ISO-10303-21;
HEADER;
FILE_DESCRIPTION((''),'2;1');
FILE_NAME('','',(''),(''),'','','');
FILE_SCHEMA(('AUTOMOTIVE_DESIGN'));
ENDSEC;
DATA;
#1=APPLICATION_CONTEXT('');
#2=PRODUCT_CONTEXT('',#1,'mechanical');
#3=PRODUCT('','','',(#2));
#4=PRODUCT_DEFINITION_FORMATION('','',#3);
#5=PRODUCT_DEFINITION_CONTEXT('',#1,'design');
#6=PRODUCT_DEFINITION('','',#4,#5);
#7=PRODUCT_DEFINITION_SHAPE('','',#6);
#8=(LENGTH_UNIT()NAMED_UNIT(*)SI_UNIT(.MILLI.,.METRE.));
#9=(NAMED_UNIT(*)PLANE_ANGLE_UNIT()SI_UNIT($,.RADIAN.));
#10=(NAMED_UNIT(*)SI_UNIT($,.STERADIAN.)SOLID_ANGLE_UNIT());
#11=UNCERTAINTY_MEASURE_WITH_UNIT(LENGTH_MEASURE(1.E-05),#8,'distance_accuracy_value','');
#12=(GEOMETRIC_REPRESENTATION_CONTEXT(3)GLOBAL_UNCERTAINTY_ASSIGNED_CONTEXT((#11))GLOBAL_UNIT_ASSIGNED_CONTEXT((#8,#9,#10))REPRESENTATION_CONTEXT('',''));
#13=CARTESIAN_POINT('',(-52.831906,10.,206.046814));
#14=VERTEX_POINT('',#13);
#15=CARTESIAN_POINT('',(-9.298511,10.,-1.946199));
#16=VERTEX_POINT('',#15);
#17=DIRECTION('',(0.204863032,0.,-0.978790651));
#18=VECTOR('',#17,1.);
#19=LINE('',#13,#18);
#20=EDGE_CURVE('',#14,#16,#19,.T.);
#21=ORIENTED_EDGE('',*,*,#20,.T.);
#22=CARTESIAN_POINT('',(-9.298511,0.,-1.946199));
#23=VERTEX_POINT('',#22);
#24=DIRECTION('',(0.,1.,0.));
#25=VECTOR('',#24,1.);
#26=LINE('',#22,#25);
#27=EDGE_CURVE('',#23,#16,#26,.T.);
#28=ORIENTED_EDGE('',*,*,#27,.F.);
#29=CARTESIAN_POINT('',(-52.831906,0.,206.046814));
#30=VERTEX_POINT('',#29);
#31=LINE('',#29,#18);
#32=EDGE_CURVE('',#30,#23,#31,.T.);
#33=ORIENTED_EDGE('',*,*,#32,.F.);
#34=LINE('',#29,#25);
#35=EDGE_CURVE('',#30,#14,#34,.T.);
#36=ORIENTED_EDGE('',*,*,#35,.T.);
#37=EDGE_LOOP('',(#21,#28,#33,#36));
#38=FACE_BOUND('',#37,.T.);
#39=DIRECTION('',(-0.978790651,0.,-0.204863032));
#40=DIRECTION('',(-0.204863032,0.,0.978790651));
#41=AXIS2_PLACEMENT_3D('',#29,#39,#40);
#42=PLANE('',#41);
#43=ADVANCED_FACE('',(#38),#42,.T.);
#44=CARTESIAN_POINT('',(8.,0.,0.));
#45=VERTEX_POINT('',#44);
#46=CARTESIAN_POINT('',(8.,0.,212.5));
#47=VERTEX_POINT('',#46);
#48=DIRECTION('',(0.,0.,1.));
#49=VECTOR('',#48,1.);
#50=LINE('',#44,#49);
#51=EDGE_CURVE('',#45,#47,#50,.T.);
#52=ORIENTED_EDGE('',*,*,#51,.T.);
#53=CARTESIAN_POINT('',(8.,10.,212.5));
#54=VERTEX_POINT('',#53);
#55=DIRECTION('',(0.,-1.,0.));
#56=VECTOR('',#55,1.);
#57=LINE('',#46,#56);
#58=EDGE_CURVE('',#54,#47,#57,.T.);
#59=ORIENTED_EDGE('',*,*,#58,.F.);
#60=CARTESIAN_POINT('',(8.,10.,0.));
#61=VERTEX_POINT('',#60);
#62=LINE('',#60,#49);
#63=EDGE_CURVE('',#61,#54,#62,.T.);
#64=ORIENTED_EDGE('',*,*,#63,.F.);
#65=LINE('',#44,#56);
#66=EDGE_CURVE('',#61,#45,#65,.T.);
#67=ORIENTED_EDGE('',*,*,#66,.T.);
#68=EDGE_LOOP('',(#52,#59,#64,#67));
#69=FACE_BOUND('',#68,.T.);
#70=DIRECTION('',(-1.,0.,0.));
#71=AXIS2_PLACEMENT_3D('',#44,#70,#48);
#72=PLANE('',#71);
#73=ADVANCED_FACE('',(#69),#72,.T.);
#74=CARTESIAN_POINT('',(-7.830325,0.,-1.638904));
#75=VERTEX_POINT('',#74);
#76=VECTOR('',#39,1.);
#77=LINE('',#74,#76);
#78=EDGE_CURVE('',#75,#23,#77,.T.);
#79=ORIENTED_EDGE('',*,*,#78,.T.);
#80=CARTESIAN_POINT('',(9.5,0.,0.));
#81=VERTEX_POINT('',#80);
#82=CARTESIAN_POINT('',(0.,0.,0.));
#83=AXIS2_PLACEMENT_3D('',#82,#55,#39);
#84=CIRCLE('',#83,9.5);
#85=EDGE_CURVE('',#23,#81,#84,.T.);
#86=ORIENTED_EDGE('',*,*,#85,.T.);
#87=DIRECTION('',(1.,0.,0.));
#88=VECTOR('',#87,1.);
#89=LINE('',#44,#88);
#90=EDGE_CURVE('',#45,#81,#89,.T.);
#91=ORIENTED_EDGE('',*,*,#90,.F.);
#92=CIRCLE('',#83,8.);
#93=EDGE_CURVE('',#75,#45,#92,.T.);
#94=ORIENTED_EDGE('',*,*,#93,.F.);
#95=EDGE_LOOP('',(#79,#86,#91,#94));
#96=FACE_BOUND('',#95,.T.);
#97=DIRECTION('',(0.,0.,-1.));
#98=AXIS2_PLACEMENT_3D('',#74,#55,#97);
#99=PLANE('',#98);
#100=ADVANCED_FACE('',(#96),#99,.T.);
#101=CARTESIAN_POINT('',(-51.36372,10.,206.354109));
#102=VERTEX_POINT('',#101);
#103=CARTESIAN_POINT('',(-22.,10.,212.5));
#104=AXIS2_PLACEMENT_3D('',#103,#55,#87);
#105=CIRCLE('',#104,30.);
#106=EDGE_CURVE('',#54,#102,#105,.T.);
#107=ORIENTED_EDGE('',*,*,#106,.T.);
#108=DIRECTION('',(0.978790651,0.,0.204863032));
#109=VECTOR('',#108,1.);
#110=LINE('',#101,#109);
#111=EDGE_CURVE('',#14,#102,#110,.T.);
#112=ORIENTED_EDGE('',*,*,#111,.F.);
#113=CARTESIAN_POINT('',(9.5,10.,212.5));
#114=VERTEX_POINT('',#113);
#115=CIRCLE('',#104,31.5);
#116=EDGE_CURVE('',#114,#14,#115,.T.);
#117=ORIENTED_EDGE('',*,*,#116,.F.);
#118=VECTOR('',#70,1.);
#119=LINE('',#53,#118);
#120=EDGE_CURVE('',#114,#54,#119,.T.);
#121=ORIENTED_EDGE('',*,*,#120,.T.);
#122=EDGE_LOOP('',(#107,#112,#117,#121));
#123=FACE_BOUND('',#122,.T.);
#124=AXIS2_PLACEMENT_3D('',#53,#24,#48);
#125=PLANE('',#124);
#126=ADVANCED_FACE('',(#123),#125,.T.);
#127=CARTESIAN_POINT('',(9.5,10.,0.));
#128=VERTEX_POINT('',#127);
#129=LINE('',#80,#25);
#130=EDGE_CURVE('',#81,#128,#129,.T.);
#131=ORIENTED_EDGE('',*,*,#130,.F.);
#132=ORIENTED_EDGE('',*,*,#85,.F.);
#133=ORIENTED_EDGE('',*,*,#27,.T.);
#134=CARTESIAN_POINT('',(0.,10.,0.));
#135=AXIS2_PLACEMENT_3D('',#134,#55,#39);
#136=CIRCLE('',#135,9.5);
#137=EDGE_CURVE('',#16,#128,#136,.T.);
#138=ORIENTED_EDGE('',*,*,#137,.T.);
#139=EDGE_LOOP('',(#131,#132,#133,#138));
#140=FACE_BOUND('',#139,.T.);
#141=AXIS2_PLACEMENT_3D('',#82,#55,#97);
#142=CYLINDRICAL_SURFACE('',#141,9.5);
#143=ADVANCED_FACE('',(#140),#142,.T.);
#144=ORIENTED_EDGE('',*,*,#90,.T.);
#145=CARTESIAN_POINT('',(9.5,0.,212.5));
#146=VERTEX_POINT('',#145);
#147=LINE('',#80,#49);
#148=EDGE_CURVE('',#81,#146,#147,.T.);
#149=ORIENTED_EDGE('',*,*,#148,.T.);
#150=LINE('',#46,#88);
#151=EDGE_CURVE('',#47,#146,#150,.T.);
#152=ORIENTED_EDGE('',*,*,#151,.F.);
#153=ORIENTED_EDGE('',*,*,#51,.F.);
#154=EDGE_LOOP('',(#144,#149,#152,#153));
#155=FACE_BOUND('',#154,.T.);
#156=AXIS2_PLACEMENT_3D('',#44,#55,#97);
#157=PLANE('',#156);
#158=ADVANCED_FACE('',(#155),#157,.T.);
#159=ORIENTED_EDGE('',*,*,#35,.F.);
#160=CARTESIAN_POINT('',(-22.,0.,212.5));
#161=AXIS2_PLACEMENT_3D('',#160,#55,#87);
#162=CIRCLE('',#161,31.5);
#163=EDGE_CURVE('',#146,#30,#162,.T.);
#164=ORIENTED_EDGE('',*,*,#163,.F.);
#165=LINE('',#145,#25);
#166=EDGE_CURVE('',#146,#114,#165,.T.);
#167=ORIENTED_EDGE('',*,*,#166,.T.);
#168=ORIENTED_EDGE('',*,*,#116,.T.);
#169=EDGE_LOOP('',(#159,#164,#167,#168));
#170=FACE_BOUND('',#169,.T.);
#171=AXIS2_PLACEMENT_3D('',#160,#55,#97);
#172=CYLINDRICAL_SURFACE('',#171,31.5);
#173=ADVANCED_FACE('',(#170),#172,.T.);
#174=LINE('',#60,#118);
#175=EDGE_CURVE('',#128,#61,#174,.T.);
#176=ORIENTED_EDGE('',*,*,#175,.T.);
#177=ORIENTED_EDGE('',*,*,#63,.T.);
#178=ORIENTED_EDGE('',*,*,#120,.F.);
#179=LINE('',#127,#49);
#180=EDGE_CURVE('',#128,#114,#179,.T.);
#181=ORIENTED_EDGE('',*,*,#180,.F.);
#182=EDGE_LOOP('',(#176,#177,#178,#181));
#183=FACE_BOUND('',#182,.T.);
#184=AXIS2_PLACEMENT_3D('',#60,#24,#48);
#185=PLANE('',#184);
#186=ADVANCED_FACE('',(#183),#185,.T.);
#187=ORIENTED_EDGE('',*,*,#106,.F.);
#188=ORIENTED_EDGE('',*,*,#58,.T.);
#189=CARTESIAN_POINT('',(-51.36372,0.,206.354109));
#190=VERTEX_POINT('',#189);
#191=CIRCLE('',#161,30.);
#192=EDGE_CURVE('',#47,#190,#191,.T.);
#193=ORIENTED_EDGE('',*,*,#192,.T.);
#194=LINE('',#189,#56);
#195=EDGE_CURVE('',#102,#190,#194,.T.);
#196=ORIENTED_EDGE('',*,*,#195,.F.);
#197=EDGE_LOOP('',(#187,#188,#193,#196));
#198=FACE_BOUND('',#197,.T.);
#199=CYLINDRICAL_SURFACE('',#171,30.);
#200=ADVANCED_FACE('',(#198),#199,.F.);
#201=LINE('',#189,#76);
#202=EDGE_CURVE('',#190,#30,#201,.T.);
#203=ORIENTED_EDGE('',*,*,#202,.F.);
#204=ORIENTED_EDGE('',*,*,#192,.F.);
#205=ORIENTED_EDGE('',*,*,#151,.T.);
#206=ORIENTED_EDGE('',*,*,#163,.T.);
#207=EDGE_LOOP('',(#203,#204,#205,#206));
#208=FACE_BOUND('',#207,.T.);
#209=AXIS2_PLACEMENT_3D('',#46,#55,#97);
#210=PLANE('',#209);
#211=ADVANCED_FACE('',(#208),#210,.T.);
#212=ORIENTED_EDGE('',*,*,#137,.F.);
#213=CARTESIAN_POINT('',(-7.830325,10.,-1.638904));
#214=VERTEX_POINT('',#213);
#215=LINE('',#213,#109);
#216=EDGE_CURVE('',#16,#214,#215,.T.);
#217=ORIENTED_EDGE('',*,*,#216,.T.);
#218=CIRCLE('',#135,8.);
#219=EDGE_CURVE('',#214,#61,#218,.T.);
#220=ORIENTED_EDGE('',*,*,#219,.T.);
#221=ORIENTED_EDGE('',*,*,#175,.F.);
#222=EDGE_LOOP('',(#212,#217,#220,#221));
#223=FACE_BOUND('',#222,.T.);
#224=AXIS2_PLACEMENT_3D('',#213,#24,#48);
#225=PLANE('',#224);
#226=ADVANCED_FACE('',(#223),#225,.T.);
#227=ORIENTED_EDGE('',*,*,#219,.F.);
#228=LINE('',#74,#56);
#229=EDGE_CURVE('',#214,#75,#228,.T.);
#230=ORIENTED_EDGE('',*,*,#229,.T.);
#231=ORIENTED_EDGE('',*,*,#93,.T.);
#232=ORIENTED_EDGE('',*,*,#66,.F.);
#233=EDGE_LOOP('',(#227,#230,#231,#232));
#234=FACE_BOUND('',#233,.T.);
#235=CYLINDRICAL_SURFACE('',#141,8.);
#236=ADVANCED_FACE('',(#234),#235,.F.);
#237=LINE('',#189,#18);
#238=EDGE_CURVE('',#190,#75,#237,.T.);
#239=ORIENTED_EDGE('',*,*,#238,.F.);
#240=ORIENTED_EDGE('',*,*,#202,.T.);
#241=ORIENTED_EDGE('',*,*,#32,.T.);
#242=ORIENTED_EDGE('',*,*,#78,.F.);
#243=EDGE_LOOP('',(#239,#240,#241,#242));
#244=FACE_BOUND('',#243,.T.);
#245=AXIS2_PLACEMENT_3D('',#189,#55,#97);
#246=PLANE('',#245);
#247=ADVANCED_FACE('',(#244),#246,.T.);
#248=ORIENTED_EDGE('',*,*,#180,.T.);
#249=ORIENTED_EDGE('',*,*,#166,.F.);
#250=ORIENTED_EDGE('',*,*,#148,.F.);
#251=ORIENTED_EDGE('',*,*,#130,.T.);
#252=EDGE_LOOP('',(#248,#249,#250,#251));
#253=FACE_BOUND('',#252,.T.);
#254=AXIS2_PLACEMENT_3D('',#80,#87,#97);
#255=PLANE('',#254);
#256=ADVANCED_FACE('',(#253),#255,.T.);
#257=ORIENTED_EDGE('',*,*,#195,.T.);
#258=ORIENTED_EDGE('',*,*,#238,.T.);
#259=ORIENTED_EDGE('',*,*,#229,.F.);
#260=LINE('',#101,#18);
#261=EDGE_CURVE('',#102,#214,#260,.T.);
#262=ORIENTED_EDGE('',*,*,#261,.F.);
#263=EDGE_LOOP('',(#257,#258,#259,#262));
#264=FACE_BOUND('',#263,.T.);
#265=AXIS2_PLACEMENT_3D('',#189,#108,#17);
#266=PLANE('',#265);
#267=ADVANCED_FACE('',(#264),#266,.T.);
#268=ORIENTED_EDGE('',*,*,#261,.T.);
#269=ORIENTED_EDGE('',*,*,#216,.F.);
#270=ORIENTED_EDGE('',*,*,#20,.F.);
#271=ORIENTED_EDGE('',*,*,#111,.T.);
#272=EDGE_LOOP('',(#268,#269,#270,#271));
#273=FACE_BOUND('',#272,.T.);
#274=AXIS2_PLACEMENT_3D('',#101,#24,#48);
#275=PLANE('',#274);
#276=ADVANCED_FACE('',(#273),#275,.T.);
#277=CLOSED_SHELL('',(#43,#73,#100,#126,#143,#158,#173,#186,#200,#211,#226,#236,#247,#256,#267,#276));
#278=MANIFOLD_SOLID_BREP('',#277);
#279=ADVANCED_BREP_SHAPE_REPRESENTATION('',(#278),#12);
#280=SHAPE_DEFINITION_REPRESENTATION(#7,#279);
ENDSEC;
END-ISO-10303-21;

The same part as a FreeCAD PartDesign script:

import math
import FreeCAD as App
import Part
import Sketcher


def add_polygon(sketch, points):
    """Adds a closed chain of lines whose ends are joined by coincident constraints."""
    first, n = sketch.GeometryCount, len(points)
    for a, b in zip(points, points[1:] + points[:1]):
        sketch.addGeometry(Part.LineSegment(App.Vector(*a, 0), App.Vector(*b, 0)), False)
    for i in range(n):
        sketch.addConstraint(Sketcher.Constraint("Coincident", first + i, 2, first + (i + 1) % n, 1))

doc = App.newDocument("Part")
body = doc.addObject("PartDesign::Body", "Body")

sketch1 = doc.addObject("Sketcher::SketchObject", "Sketch")
body.addObject(sketch1)
sketch1.AttachmentSupport = (doc.XY_Plane, [""])
sketch1.MapMode = "FlatFace"
add_polygon(sketch1, [(8, 10), (8, 0), (9.5, 0), (9.5, 10)])
sketch1.addConstraint(Sketcher.Constraint("Vertical", 0))
sketch1.addConstraint(Sketcher.Constraint("Horizontal", 1))
sketch1.addConstraint(Sketcher.Constraint("Vertical", 2))
sketch1.addConstraint(Sketcher.Constraint("Horizontal", 3))
sketch1.addConstraint(Sketcher.Constraint("PointOnObject", 0, 2, -1))
sketch1.addConstraint(Sketcher.Constraint("DistanceY", 0, 2, 0, 1, 10.0))
sketch1.addConstraint(Sketcher.Constraint("DistanceX", 1, 1, 1, 2, 1.5))
sketch1.addConstraint(Sketcher.Constraint("DistanceX", -1, 1, 0, 2, 8.0))

sketch2 = doc.addObject("Sketcher::SketchObject", "Sketch001")
body.addObject(sketch2)
sketch2.AttachmentSupport = (doc.XZ_Plane, [""])
sketch2.MapMode = "FlatFace"
sketch2.addGeometry(Part.LineSegment(App.Vector(8, 212, 0), App.Vector(8, 0, 0)), False)
sketch2.addGeometry(Part.ArcOfCircle(Part.Circle(App.Vector(0, 0, 0), App.Vector(0, 0, 1), 8), math.radians(-168), math.radians(0)), False)
sketch2.addGeometry(Part.LineSegment(App.Vector(-8, -2, 0), App.Vector(-51, 206, 0)), False)
sketch2.addGeometry(Part.ArcOfCircle(Part.Circle(App.Vector(-22, 212, 0), App.Vector(0, 0, 1), 30), math.radians(0), math.radians(192)), False)
sketch2.addConstraint(Sketcher.Constraint("Tangent", 0, 2, 1, 2))
sketch2.addConstraint(Sketcher.Constraint("Tangent", 1, 1, 2, 1))
sketch2.addConstraint(Sketcher.Constraint("Tangent", 2, 2, 3, 2))
sketch2.addConstraint(Sketcher.Constraint("Tangent", 3, 1, 0, 1))
sketch2.addConstraint(Sketcher.Constraint("Vertical", 0))
sketch2.addConstraint(Sketcher.Constraint("Coincident", 1, 3, -1, 1))
sketch2.addConstraint(Sketcher.Constraint("Radius", 1, 8.0))
sketch2.addConstraint(Sketcher.Constraint("Radius", 3, 30.0))
sketch2.addConstraint(Sketcher.Constraint("DistanceY", 0, 2, 0, 1, 212.5))
doc.recompute()

additivepipe = doc.addObject("PartDesign::AdditivePipe", "AdditivePipe")
body.addObject(additivepipe)
additivepipe.Profile = sketch1
additivepipe.Spine = (sketch2, ["Edge1", "Edge2", "Edge3", "Edge4"])

doc.recompute()
